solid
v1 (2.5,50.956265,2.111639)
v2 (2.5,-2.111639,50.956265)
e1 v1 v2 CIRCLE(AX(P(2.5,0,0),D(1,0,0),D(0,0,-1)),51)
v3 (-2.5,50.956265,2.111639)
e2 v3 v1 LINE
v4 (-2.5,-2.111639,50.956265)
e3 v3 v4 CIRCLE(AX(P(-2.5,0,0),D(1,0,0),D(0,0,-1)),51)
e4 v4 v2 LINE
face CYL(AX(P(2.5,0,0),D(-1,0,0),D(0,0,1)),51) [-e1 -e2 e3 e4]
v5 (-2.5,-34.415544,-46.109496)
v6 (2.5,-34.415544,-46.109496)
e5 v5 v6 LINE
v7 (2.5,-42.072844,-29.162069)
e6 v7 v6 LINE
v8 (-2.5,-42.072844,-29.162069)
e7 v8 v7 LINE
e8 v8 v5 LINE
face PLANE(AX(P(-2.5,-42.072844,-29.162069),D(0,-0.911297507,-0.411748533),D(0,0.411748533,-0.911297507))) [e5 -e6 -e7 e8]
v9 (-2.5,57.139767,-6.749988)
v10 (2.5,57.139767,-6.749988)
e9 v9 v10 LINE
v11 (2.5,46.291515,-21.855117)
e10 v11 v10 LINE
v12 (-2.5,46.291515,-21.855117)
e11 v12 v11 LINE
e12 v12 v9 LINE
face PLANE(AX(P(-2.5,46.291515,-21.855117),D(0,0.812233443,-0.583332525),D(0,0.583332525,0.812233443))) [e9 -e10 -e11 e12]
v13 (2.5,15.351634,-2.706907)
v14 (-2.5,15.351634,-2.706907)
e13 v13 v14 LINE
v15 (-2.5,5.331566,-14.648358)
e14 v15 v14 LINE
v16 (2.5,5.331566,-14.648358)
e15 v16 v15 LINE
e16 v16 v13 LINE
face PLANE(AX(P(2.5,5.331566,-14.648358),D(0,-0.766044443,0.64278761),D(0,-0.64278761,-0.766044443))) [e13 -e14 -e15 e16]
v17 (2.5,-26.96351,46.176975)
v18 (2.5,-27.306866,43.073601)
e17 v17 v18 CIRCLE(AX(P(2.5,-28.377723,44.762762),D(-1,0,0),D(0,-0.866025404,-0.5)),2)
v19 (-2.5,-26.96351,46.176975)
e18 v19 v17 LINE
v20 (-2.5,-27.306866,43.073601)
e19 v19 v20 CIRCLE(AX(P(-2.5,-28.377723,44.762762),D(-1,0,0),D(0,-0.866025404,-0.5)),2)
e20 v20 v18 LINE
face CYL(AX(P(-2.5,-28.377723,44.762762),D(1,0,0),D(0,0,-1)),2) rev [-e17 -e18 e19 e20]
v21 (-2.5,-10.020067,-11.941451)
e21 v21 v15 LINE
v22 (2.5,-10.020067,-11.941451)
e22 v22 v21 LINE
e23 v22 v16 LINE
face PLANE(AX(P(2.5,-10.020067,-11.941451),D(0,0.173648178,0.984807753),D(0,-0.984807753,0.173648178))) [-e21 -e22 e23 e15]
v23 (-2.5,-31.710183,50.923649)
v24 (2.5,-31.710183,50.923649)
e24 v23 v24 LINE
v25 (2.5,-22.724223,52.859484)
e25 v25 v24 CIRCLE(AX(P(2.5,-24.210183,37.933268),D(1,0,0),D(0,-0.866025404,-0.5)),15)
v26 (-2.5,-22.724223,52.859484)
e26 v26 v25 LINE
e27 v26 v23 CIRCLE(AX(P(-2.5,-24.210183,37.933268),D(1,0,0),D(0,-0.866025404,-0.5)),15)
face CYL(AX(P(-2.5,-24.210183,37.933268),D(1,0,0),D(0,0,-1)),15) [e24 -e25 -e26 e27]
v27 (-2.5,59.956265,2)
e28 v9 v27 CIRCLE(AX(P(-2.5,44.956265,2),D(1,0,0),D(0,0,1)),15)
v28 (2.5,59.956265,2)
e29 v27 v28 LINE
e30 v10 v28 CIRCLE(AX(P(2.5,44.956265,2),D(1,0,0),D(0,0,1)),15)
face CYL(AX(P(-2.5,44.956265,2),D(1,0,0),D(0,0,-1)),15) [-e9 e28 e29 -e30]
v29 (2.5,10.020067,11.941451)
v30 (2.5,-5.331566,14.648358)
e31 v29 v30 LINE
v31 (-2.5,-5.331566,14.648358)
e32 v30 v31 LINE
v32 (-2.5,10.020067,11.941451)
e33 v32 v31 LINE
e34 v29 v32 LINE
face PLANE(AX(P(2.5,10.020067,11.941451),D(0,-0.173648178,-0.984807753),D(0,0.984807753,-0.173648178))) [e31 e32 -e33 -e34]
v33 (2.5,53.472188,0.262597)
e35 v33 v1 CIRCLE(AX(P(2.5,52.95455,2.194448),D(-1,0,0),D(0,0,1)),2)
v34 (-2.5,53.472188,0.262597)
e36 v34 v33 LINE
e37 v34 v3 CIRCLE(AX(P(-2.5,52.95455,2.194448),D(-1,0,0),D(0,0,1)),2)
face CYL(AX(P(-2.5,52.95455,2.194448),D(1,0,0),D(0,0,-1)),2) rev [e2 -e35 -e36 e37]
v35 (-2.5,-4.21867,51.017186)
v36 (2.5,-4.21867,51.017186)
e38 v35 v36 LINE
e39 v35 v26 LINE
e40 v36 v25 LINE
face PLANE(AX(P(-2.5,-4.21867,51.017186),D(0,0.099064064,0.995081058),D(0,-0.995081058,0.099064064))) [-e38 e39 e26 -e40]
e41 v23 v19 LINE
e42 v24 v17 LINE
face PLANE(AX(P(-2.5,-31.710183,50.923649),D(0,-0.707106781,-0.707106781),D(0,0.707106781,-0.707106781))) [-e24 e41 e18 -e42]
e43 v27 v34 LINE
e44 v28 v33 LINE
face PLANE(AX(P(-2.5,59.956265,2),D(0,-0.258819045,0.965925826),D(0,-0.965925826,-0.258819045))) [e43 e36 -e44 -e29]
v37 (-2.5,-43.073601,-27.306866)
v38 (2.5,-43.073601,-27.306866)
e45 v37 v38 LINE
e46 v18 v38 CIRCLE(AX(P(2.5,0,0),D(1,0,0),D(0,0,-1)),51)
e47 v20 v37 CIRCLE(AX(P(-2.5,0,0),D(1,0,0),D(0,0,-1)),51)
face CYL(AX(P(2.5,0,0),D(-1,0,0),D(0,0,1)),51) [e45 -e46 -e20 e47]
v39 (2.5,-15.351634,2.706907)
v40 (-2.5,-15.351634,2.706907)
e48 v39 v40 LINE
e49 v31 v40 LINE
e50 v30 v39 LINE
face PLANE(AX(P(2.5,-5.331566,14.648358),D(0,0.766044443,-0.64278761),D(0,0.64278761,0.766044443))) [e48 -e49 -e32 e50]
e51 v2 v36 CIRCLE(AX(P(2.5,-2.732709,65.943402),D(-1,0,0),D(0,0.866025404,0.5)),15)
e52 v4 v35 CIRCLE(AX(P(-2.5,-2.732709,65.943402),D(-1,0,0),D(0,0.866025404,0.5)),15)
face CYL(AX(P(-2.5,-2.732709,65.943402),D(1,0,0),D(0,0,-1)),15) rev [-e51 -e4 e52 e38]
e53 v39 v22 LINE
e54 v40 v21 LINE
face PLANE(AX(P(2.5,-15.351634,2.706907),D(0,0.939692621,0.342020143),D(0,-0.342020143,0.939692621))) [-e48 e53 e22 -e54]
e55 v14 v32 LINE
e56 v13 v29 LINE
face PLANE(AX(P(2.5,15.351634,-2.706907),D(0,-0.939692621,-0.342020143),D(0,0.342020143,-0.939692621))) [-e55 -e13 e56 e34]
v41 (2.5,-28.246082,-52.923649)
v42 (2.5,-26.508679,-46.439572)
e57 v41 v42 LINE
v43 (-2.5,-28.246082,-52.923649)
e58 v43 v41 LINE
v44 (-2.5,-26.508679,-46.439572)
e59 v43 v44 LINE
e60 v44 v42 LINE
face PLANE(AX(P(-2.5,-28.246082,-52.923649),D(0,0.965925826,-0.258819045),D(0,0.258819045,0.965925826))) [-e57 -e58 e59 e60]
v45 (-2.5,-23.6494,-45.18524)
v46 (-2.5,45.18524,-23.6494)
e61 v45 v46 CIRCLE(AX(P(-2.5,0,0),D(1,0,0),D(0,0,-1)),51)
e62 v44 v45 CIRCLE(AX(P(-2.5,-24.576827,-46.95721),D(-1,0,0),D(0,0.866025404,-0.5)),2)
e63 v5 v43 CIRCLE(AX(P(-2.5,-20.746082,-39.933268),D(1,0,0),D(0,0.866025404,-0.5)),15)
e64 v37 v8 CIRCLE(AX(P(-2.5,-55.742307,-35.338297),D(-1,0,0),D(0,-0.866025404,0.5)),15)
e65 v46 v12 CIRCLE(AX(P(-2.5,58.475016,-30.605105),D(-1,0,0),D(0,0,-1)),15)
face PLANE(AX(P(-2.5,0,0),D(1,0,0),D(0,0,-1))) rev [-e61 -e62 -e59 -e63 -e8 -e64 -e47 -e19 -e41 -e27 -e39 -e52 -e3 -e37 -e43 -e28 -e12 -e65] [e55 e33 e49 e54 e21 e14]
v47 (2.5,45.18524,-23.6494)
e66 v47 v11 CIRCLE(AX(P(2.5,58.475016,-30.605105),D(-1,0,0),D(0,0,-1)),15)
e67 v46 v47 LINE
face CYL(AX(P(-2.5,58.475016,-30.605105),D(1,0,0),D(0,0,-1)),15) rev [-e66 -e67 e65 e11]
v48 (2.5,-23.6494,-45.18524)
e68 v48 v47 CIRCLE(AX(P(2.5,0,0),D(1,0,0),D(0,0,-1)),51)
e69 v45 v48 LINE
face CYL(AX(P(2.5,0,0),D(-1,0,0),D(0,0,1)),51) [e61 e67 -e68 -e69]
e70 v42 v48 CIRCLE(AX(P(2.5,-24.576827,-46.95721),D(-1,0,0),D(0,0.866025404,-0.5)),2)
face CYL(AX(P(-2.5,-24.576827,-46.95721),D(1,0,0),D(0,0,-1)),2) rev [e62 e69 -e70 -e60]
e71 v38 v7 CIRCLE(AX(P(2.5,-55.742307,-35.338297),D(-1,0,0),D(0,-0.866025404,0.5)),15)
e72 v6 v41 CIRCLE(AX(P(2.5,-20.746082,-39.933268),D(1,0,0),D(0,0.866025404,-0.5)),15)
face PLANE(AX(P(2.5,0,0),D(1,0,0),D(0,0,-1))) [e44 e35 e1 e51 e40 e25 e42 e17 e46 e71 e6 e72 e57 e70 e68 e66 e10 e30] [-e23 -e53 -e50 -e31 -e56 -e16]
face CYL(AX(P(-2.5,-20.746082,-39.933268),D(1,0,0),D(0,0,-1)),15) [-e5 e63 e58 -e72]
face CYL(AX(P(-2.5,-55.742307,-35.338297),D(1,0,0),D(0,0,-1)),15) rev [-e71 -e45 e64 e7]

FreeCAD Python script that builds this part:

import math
import FreeCAD as App
import Part
import Sketcher
Q = App.Units.Quantity

doc = App.newDocument("Part")
body = doc.addObject("PartDesign::Body", "Body")

# Sketch on YZ plane
sketch1 = body.newObject("Sketcher::SketchObject", "Sketch")
sketch1.AttachmentSupport = (doc.getObject("YZ_Plane"), [""])
sketch1.MapMode = "FlatFace"
sketch1.addGeometry([
    Part.Circle(App.Vector(0, 0, 0), App.Vector(0, 0, 1), 51),  # 0
    Part.LineSegment(App.Vector(15, -3, 0), App.Vector(5, -15, 0)),  # 1
    Part.LineSegment(App.Vector(5, -15, 0), App.Vector(-10, -12, 0)),  # 2
    Part.LineSegment(App.Vector(-10, -12, 0), App.Vector(-15, 3, 0)),  # 3
    Part.LineSegment(App.Vector(-15, 3, 0), App.Vector(-5, 15, 0)),  # 4
    Part.LineSegment(App.Vector(-5, 15, 0), App.Vector(10, 12, 0)),  # 5
    Part.LineSegment(App.Vector(10, 12, 0), App.Vector(15, -3, 0)),  # 6
], False)
sketch1.addConstraint([
    Sketcher.Constraint("Coincident", 1, 2, 2, 1),
    Sketcher.Constraint("Coincident", 2, 2, 3, 1),
    Sketcher.Constraint("Coincident", 3, 2, 4, 1),
    Sketcher.Constraint("Coincident", 4, 2, 5, 1),
    Sketcher.Constraint("Coincident", 5, 2, 6, 1),
    Sketcher.Constraint("Coincident", 6, 2, 1, 1),
    Sketcher.Constraint("Coincident", 0, 3, -1, 1),
    Sketcher.Constraint("Symmetric", 1, 2, 4, 2, -1, 1),
    Sketcher.Constraint("Symmetric", 2, 2, 5, 2, -1, 1),
    Sketcher.Constraint("Symmetric", 3, 2, 6, 2, -1, 1),
    Sketcher.Constraint("Equal", 1, 2),
    Sketcher.Constraint("Equal", 2, 3),
    Sketcher.Constraint("Diameter", 0, Q("102 mm")),
    Sketcher.Constraint("Angle", 1, Q("-130 deg")),
    Sketcher.Constraint("Angle", 2, Q("170 deg")),
    Sketcher.Constraint("Angle", 3, Q("110 deg")),
    Sketcher.Constraint("DistanceX", 3, 2, 1, 2, Q("20.6832 mm")),
])
pad1 = body.newObject("PartDesign::Pad", "Pad")
pad1.Profile = sketch1
pad1.Length = 5
pad1.Midplane = True

# Sketch on YZ plane
sketch2 = body.newObject("Sketcher::SketchObject", "Sketch001")
sketch2.AttachmentSupport = (doc.getObject("YZ_Plane"), [""])
sketch2.MapMode = "FlatFace"
sketch2.addGeometry([
    Part.LineSegment(App.Vector(60, 2, 0), App.Vector(53.5, 0.3, 0)),  # 0
    Part.ArcOfCircle(Part.Circle(App.Vector(53, 2.2, 0), App.Vector(0, 0, 1), 2), math.radians(-178), math.radians(-75)),  # 1
    Part.ArcOfCircle(Part.Circle(App.Vector(0, 0, 0), App.Vector(0, 0, 1), 51), math.radians(-28), math.radians(2)),  # 2
    Part.ArcOfCircle(Part.Circle(App.Vector(58.5, -30.6, 0), App.Vector(0, 0, 1), 15), math.radians(144.31), math.radians(152.37)),  # 3
    Part.LineSegment(App.Vector(46.3, -21.9, 0), App.Vector(57.1, -6.7, 0)),  # 4
    Part.ArcOfCircle(Part.Circle(App.Vector(45, 2, 0), App.Vector(0, 0, 1), 15), math.radians(-36), math.radians(0)),  # 5
], False)
sketch2.addConstraint([
    Sketcher.Constraint("Tangent", 0, 2, 1, 2),
    Sketcher.Constraint("Tangent", 1, 1, 2, 2),
    Sketcher.Constraint("Tangent", 2, 1, 3, 2),
    Sketcher.Constraint("Tangent", 3, 1, 4, 1),
    Sketcher.Constraint("Tangent", 4, 2, 5, 1),
    Sketcher.Constraint("Coincident", 5, 2, 0, 1),
    Sketcher.Constraint("Coincident", 2, 3, -1, 1),
    Sketcher.Constraint("Equal", 3, 5),
    Sketcher.Constraint("Radius", 1, Q("2 mm")),
    Sketcher.Constraint("Radius", 2, Q("51 mm")),
    Sketcher.Constraint("Radius", 3, Q("15 mm")),
    Sketcher.Constraint("Angle", 0, Q("-165 deg")),
    Sketcher.Constraint("DistanceY", -1, 1, 5, 3, Q("2 mm")),
    Sketcher.Constraint("DistanceY", -1, 1, 5, 2, Q("2 mm")),
    Sketcher.Constraint("DistanceX", 5, 3, 1, 1, Q("6 mm")),
    Sketcher.Constraint("DistanceY", 2, 1, -1, 1, Q("23.6494 mm")),
])
pad2 = body.newObject("PartDesign::Pad", "Pad001")
pad2.Profile = sketch2
pad2.Length = 5
pad2.Midplane = True
doc.recompute()

polarpattern = body.newObject("PartDesign::PolarPattern", "PolarPattern")
polarpattern.Originals = [pad2]
polarpattern.Axis = (doc.getObject("X_Axis"), [""])
polarpattern.Angle = 360
polarpattern.Occurrences = 3
body.Tip = polarpattern

doc.recompute()
